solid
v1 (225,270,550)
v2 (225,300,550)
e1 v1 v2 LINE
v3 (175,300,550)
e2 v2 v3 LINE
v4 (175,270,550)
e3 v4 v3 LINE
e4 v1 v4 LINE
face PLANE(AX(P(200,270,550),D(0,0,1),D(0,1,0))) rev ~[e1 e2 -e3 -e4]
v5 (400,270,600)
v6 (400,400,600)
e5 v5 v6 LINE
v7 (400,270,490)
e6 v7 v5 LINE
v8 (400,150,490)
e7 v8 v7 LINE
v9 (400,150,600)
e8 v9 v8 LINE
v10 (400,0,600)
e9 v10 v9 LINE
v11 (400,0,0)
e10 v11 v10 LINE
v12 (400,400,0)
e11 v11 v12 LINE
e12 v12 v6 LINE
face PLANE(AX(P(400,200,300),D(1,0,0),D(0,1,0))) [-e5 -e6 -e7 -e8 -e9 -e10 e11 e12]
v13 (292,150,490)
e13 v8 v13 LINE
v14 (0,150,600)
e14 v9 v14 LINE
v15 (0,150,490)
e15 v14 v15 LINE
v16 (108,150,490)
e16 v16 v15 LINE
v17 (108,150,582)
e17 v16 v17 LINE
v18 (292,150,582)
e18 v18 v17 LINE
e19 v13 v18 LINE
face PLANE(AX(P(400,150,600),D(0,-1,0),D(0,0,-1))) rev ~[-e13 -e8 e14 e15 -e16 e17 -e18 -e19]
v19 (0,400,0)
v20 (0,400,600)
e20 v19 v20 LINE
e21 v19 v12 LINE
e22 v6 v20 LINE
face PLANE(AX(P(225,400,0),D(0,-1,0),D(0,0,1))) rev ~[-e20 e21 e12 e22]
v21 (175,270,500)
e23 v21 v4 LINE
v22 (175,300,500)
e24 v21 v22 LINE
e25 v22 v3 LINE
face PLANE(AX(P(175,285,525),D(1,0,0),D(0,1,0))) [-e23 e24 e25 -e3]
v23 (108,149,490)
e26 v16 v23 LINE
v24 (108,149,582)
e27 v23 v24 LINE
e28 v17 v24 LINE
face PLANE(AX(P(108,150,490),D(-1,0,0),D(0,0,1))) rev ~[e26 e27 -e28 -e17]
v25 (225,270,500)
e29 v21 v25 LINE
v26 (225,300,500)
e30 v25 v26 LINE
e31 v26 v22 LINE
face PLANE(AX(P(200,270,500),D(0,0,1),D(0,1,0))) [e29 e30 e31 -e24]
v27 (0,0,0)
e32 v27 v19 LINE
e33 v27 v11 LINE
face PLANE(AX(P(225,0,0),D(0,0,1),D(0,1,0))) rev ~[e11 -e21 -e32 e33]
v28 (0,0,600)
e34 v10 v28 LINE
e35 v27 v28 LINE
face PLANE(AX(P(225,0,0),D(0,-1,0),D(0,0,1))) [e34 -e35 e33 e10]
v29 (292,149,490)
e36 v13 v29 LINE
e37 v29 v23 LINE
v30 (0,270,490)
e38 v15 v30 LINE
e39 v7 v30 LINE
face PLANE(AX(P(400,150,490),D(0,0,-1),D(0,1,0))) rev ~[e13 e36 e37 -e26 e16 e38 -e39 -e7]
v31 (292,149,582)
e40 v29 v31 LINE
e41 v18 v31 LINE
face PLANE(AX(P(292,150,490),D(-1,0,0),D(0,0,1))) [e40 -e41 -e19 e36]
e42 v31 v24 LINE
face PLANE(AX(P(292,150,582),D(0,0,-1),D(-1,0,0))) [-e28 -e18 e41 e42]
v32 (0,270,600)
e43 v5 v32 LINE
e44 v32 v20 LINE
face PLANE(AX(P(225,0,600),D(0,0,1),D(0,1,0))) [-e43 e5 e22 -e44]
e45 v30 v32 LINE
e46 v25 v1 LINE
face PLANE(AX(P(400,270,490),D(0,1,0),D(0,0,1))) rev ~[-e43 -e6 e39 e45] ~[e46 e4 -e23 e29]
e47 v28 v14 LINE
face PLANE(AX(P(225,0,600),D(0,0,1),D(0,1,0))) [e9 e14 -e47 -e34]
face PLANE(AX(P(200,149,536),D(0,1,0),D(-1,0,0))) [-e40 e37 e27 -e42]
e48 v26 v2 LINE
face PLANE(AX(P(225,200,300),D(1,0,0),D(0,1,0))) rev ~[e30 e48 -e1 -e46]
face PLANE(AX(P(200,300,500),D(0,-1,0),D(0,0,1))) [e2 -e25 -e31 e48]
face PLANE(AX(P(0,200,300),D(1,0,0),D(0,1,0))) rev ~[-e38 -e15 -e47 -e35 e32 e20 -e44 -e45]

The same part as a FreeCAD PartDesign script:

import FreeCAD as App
import Part
import Sketcher
from FreeCAD import Vector
Q = App.Units.Quantity


def add_polygon(sketch, points):
    """Adds a closed chain of lines whose ends are joined by coincident constraints."""
    first, n = sketch.GeometryCount, len(points)
    for a, b in zip(points, points[1:] + points[:1]):
        sketch.addGeometry(Part.LineSegment(App.Vector(*a, 0), App.Vector(*b, 0)), False)
    for i in range(n):
        sketch.addConstraint(Sketcher.Constraint("Coincident", first + i, 2, first + (i + 1) % n, 1))

doc = App.newDocument("Part")
body = doc.addObject("PartDesign::Body", "Body")

sketch1 = body.newObject("Sketcher::SketchObject", "Sketch")
sketch1.AttachmentSupport = (doc.getObject("YZ_Plane"), [""])
sketch1.MapMode = "FlatFace"
add_polygon(sketch1, [(0, 600), (0, 0), (400, 0), (400, 600)])
sketch1.addConstraint([
    Sketcher.Constraint("Vertical", 0),
    Sketcher.Constraint("Horizontal", 1),
    Sketcher.Constraint("Vertical", 2),
    Sketcher.Constraint("Horizontal", 3),
    Sketcher.Constraint("Coincident", 0, 2, -1, 1),
    Sketcher.Constraint("DistanceX", 1, 1, 1, 2, Q("400 mm")),
    Sketcher.Constraint("DistanceY", 0, 2, 0, 1, Q("600 mm")),
])
pad1 = body.newObject("PartDesign::Pad", "Pad")
pad1.Profile = sketch1
pad1.Length = 200

sketch2 = body.newObject("Sketcher::SketchObject", "Sketch001")
sketch2.AttachmentSupport = (doc.getObject("YZ_Plane"), [""])
sketch2.MapMode = "FlatFace"
sketch2.AttachmentOffset = App.Placement(Vector(0, 0, 200), App.Rotation())
add_polygon(sketch2, [(270, 550), (270, 500), (300, 500), (300, 550)])
sketch2.addConstraint([
    Sketcher.Constraint("Vertical", 0),
    Sketcher.Constraint("Horizontal", 1),
    Sketcher.Constraint("Vertical", 2),
    Sketcher.Constraint("Horizontal", 3),
    Sketcher.Constraint("DistanceX", 1, 1, 1, 2, Q("30 mm")),
    Sketcher.Constraint("DistanceY", 0, 2, 0, 1, Q("50 mm")),
    Sketcher.Constraint("DistanceX", -1, 1, 0, 2, Q("270 mm")),
    Sketcher.Constraint("DistanceY", -1, 1, 0, 2, Q("500 mm")),
])
pocket1 = body.newObject("PartDesign::Pocket", "Pocket")
pocket1.Profile = sketch2
pocket1.Length = 25

sketch3 = body.newObject("Sketcher::SketchObject", "Sketch002")
sketch3.AttachmentSupport = (doc.getObject("YZ_Plane"), [""])
sketch3.MapMode = "FlatFace"
sketch3.AttachmentOffset = App.Placement(Vector(0, 0, 200), App.Rotation())
add_polygon(sketch3, [(0, 600), (0, 0), (400, 0), (400, 600)])
add_polygon(sketch3, [(300, 500), (270, 500), (270, 550), (300, 550)])
sketch3.addConstraint([
    Sketcher.Constraint("Vertical", 0),
    Sketcher.Constraint("Horizontal", 1),
    Sketcher.Constraint("Vertical", 2),
    Sketcher.Constraint("Horizontal", 3),
    Sketcher.Constraint("Horizontal", 4),
    Sketcher.Constraint("Vertical", 5),
    Sketcher.Constraint("Horizontal", 6),
    Sketcher.Constraint("Vertical", 7),
    Sketcher.Constraint("Coincident", 0, 2, -1, 1),
    Sketcher.Constraint("DistanceX", 1, 1, 1, 2, Q("400 mm")),
    Sketcher.Constraint("DistanceX", 4, 2, 4, 1, Q("30 mm")),
    Sketcher.Constraint("DistanceY", 0, 2, 0, 1, Q("600 mm")),
    Sketcher.Constraint("DistanceY", 5, 1, 5, 2, Q("50 mm")),
    Sketcher.Constraint("DistanceX", -1, 1, 4, 2, Q("270 mm")),
    Sketcher.Constraint("DistanceY", -1, 1, 4, 2, Q("500 mm")),
])
pad2 = body.newObject("PartDesign::Pad", "Pad001")
pad2.Profile = sketch3
pad2.Length = 25

sketch4 = body.newObject("Sketcher::SketchObject", "Sketch003")
sketch4.AttachmentSupport = (doc.getObject("YZ_Plane"), [""])
sketch4.MapMode = "FlatFace"
sketch4.AttachmentOffset = App.Placement(Vector(0, 0, 225), App.Rotation())
add_polygon(sketch4, [(0, 600), (0, 0), (400, 0), (400, 600)])
sketch4.addConstraint([
    Sketcher.Constraint("Vertical", 0),
    Sketcher.Constraint("Horizontal", 1),
    Sketcher.Constraint("Vertical", 2),
    Sketcher.Constraint("Horizontal", 3),
    Sketcher.Constraint("Coincident", 0, 2, -1, 1),
    Sketcher.Constraint("DistanceX", 1, 1, 1, 2, Q("400 mm")),
    Sketcher.Constraint("DistanceY", 0, 2, 0, 1, Q("600 mm")),
])
pad3 = body.newObject("PartDesign::Pad", "Pad002")
pad3.Profile = sketch4
pad3.Length = 175

sketch5 = body.newObject("Sketcher::SketchObject", "Sketch004")
sketch5.AttachmentSupport = (doc.getObject("YZ_Plane"), [""])
sketch5.MapMode = "FlatFace"
sketch5.AttachmentOffset = App.Placement(Vector(0, 0, 400), App.Rotation())
add_polygon(sketch5, [(270, 600), (150, 600), (150, 490), (270, 490)])
sketch5.addConstraint([
    Sketcher.Constraint("Horizontal", 0),
    Sketcher.Constraint("Vertical", 1),
    Sketcher.Constraint("Horizontal", 2),
    Sketcher.Constraint("Vertical", 3),
    Sketcher.Constraint("DistanceX", 0, 2, 0, 1, Q("120 mm")),
    Sketcher.Constraint("DistanceY", 1, 2, 1, 1, Q("110 mm")),
    Sketcher.Constraint("DistanceX", -1, 1, 0, 2, Q("150 mm")),
    Sketcher.Constraint("DistanceY", -1, 1, 0, 2, Q("600 mm")),
])
pocket2 = body.newObject("PartDesign::Pocket", "Pocket001")
pocket2.Profile = sketch5
pocket2.Type = "ThroughAll"

sketch6 = body.newObject("Sketcher::SketchObject", "Sketch005")
sketch6.AttachmentSupport = (doc.getObject("XZ_Plane"), [""])
sketch6.MapMode = "FlatFace"
sketch6.AttachmentOffset = App.Placement(Vector(0, 0, -150), App.Rotation())
add_polygon(sketch6, [(292, 582), (292, 490), (108, 490), (108, 582)])
sketch6.addConstraint([
    Sketcher.Constraint("Vertical", 0),
    Sketcher.Constraint("Horizontal", 1),
    Sketcher.Constraint("Vertical", 2),
    Sketcher.Constraint("Horizontal", 3),
    Sketcher.Constraint("DistanceX", 1, 2, 1, 1, Q("184 mm")),
    Sketcher.Constraint("DistanceY", 0, 2, 0, 1, Q("92 mm")),
    Sketcher.Constraint("DistanceX", -1, 1, 0, 2, Q("292 mm")),
    Sketcher.Constraint("DistanceY", -1, 1, 0, 2, Q("490 mm")),
])
pocket3 = body.newObject("PartDesign::Pocket", "Pocket002")
pocket3.Profile = sketch6
pocket3.Length = 1
pocket3.Reversed = True

doc.recompute()
